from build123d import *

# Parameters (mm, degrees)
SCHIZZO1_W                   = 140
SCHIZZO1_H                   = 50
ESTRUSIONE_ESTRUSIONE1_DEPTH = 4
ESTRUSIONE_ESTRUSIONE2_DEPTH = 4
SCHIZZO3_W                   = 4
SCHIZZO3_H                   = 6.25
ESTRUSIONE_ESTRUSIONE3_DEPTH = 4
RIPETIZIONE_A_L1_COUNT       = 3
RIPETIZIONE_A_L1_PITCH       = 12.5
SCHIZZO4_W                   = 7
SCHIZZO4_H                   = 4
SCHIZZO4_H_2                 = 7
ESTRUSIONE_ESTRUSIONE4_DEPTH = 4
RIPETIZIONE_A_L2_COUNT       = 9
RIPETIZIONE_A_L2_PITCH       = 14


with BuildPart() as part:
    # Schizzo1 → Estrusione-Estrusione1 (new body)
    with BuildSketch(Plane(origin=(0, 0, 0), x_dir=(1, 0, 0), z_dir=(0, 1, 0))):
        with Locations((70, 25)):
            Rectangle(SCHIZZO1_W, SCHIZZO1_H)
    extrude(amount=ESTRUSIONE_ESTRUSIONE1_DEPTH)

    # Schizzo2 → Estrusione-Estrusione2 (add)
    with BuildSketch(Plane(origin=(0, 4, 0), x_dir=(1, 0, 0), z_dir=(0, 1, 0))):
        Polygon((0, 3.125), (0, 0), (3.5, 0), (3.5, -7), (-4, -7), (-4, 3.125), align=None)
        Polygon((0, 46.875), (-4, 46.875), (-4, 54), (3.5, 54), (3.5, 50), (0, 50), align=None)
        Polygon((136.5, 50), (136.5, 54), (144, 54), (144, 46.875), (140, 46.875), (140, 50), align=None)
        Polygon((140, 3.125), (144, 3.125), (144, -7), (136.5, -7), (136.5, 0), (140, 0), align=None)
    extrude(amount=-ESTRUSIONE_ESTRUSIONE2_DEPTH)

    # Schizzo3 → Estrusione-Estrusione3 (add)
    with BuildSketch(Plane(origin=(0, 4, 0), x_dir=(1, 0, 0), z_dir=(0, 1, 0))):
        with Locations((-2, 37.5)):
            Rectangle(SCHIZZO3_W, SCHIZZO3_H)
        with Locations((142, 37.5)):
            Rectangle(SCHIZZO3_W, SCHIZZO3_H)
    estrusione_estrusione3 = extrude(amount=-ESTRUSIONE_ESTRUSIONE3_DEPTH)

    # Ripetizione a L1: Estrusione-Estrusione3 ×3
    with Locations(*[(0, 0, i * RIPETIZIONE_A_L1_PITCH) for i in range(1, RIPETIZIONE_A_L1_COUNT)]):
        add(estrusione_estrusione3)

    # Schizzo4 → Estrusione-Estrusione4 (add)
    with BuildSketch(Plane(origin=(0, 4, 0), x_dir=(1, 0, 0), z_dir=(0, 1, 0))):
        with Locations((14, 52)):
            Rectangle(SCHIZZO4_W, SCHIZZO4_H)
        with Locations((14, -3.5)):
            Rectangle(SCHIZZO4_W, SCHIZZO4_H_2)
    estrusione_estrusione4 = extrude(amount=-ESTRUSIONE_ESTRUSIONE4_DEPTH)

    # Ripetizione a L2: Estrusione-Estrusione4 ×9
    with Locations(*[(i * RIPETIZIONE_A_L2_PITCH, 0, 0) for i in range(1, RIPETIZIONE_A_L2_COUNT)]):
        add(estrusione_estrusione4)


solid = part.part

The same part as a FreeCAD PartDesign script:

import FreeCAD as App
import Part
import Sketcher

V = App.Vector


def add_polygon(sketch, points):
    """Adds a closed chain of lines whose ends are joined by coincident constraints."""
    first, n = sketch.GeometryCount, len(points)
    for a, b in zip(points, points[1:] + points[:1]):
        sketch.addGeometry(Part.LineSegment(App.Vector(*a, 0), App.Vector(*b, 0)), False)
    for i in range(n):
        sketch.addConstraint(Sketcher.Constraint("Coincident", first + i, 2, first + (i + 1) % n, 1))

doc = App.newDocument("Part")
body = doc.addObject("PartDesign::Body", "Body")

sketch1 = body.newObject("Sketcher::SketchObject", "Sketch")
sketch1.AttachmentSupport = (doc.getObject("XZ_Plane"), [""])
sketch1.MapMode = "FlatFace"
add_polygon(sketch1, [(0, -50), (0, 0), (140, 0), (140, -50)])
sketch1.addConstraint([
    Sketcher.Constraint("Vertical", 0),
    Sketcher.Constraint("Horizontal", 1),
    Sketcher.Constraint("Vertical", 2),
    Sketcher.Constraint("Horizontal", 3),
    Sketcher.Constraint("Coincident", 0, 2, -1, 1),
    Sketcher.Constraint("DistanceX", 1, 1, 1, 2, 140.0),
    Sketcher.Constraint("DistanceY", 0, 1, 0, 2, 50.0),
])
pad1 = body.newObject("PartDesign::Pad", "Pad")
pad1.Profile = sketch1
pad1.Length = 4
pad1.Reversed = True

sketch2 = body.newObject("Sketcher::SketchObject", "Sketch001")
sketch2.AttachmentSupport = (doc.getObject("XZ_Plane"), [""])
sketch2.MapMode = "FlatFace"
sketch2.AttachmentOffset = App.Placement(V(0, 0, -4), App.Rotation())
add_polygon(sketch2, [(0, 0), (0, -3.1), (-4, -3.1), (-4, 7), (3.5, 7), (3.5, 0)])
add_polygon(sketch2, [(-4, -46.9), (0, -46.9), (0, -50), (3.5, -50), (3.5, -54), (-4, -54)])
add_polygon(sketch2, [(136.5, -54), (136.5, -50), (140, -50), (140, -46.9), (144, -46.9), (144, -54)])
add_polygon(sketch2, [(144, -3.1), (140, -3.1), (140, 0), (136.5, 0), (136.5, 7), (144, 7)])
sketch2.addConstraint([
    Sketcher.Constraint("Vertical", 0),
    Sketcher.Constraint("Horizontal", 1),
    Sketcher.Constraint("Vertical", 2),
    Sketcher.Constraint("Horizontal", 3),
    Sketcher.Constraint("Vertical", 4),
    Sketcher.Constraint("Horizontal", 5),
    Sketcher.Constraint("Horizontal", 6),
    Sketcher.Constraint("Vertical", 7),
    Sketcher.Constraint("Horizontal", 8),
    Sketcher.Constraint("Vertical", 9),
    Sketcher.Constraint("Horizontal", 10),
    Sketcher.Constraint("Vertical", 11),
    Sketcher.Constraint("Vertical", 12),
    Sketcher.Constraint("Horizontal", 13),
    Sketcher.Constraint("Vertical", 14),
    Sketcher.Constraint("Horizontal", 15),
    Sketcher.Constraint("Vertical", 16),
    Sketcher.Constraint("Horizontal", 17),
    Sketcher.Constraint("Horizontal", 18),
    Sketcher.Constraint("Vertical", 19),
    Sketcher.Constraint("Horizontal", 20),
    Sketcher.Constraint("Vertical", 21),
    Sketcher.Constraint("Horizontal", 22),
    Sketcher.Constraint("Vertical", 23),
    Sketcher.Constraint("Coincident", 5, 2, -1, 1),
    Sketcher.Constraint("PointOnObject", 6, 2, -2),
    Sketcher.Constraint("PointOnObject", 19, 2, -1),
    Sketcher.Constraint("Horizontal", 8, 2, 12, 2),
    Sketcher.Constraint("Horizontal", 11, 2, 14, 2),
    Sketcher.Constraint("Horizontal", 10, 2, 16, 2),
    Sketcher.Constraint("Horizontal", 1, 2, 18, 2),
    Sketcher.Constraint("Horizontal", 3, 2, 21, 2),
    Sketcher.Constraint("Vertical", 4, 2, 8, 2),
    Sketcher.Constraint("Vertical", 2, 2, 10, 2),
    Sketcher.Constraint("Vertical", 14, 2, 18, 2),
    Sketcher.Constraint("Vertical", 17, 2, 20, 2),
    Sketcher.Constraint("Vertical", 16, 2, 22, 2),
    Sketcher.Constraint("Equal", 8, 13),
    Sketcher.Constraint("Equal", 6, 15),
    Sketcher.Constraint("Equal", 0, 7),
    Sketcher.Constraint("Equal", 18, 9),
    Sketcher.Constraint("DistanceX", 1, 2, 1, 1, 4.0),
    Sketcher.Constraint("DistanceY", 4, 2, 4, 1, 7.0),
    Sketcher.Constraint("DistanceX", 3, 1, 3, 2, 7.5),
    Sketcher.Constraint("DistanceY", 7, 2, -1, 1, 50.0),
    Sketcher.Constraint("DistanceX", -1, 1, 13, 2, 140.0),
    Sketcher.Constraint("DistanceY", 0, 2, 0, 1, 3.125),
])
pad2 = body.newObject("PartDesign::Pad", "Pad001")
pad2.Profile = sketch2
pad2.Length = 4

sketch3 = body.newObject("Sketcher::SketchObject", "Sketch002")
sketch3.AttachmentSupport = (doc.getObject("XZ_Plane"), [""])
sketch3.MapMode = "FlatFace"
sketch3.AttachmentOffset = App.Placement(V(0, 0, -4), App.Rotation())
add_polygon(sketch3, [(-4, -40.6), (-4, -34.4), (0, -34.4), (0, -40.6)])
add_polygon(sketch3, [(140, -40.6), (140, -34.4), (144, -34.4), (144, -40.6)])
sketch3.addConstraint([
    Sketcher.Constraint("Vertical", 0),
    Sketcher.Constraint("Horizontal", 1),
    Sketcher.Constraint("Vertical", 2),
    Sketcher.Constraint("Horizontal", 3),
    Sketcher.Constraint("Vertical", 4),
    Sketcher.Constraint("Horizontal", 5),
    Sketcher.Constraint("Vertical", 6),
    Sketcher.Constraint("Horizontal", 7),
    Sketcher.Constraint("PointOnObject", 1, 2, -2),
    Sketcher.Constraint("Horizontal", 1, 2, 4, 2),
    Sketcher.Constraint("Horizontal", 3, 2, 6, 2),
    Sketcher.Constraint("Equal", 3, 5),
    Sketcher.Constraint("DistanceX", 1, 1, 1, 2, 4.0),
    Sketcher.Constraint("DistanceX", -1, 1, 4, 2, 140.0),
    Sketcher.Constraint("DistanceY", 0, 1, 0, 2, 6.25),
    Sketcher.Constraint("DistanceY", 0, 2, -1, 1, 34.375),
])
pad3 = body.newObject("PartDesign::Pad", "Pad002")
pad3.Profile = sketch3
pad3.Length = 4
doc.recompute()

linearpattern = body.newObject("PartDesign::LinearPattern", "LinearPattern")
linearpattern.Originals = [pad3]
linearpattern.Direction = (doc.getObject("Z_Axis"), [""])
linearpattern.Mode = "offset"
linearpattern.Offset = 12.5
linearpattern.Occurrences = 3
body.Tip = linearpattern

sketch4 = body.newObject("Sketcher::SketchObject", "Sketch003")
sketch4.AttachmentSupport = (doc.getObject("XZ_Plane"), [""])
sketch4.MapMode = "FlatFace"
sketch4.AttachmentOffset = App.Placement(V(0, 0, -4), App.Rotation())
add_polygon(sketch4, [(10.5, -54), (10.5, -50), (17.5, -50), (17.5, -54)])
add_polygon(sketch4, [(10.5, 0), (10.5, 7), (17.5, 7), (17.5, 0)])
sketch4.addConstraint([
    Sketcher.Constraint("Vertical", 0),
    Sketcher.Constraint("Horizontal", 1),
    Sketcher.Constraint("Vertical", 2),
    Sketcher.Constraint("Horizontal", 3),
    Sketcher.Constraint("Vertical", 4),
    Sketcher.Constraint("Horizontal", 5),
    Sketcher.Constraint("Vertical", 6),
    Sketcher.Constraint("Horizontal", 7),
    Sketcher.Constraint("PointOnObject", 6, 2, -1),
    Sketcher.Constraint("Vertical", 3, 2, 4, 2),
    Sketcher.Constraint("Vertical", 2, 2, 5, 2),
    Sketcher.Constraint("Equal", 7, 4),
    Sketcher.Constraint("DistanceX", 1, 1, 1, 2, 7.0),
    Sketcher.Constraint("DistanceY", 0, 1, 0, 2, 4.0),
    Sketcher.Constraint("DistanceY", 0, 2, -1, 1, 50.0),
    Sketcher.Constraint("DistanceX", -1, 1, 0, 2, 10.5),
])
pad4 = body.newObject("PartDesign::Pad", "Pad003")
pad4.Profile = sketch4
pad4.Length = 4
doc.recompute()

linearpattern2 = body.newObject("PartDesign::LinearPattern", "LinearPattern001")
linearpattern2.Originals = [pad4]
linearpattern2.Direction = (doc.getObject("X_Axis"), [""])
linearpattern2.Mode = "offset"
linearpattern2.Offset = 14
linearpattern2.Occurrences = 9
body.Tip = linearpattern2

doc.recompute()
